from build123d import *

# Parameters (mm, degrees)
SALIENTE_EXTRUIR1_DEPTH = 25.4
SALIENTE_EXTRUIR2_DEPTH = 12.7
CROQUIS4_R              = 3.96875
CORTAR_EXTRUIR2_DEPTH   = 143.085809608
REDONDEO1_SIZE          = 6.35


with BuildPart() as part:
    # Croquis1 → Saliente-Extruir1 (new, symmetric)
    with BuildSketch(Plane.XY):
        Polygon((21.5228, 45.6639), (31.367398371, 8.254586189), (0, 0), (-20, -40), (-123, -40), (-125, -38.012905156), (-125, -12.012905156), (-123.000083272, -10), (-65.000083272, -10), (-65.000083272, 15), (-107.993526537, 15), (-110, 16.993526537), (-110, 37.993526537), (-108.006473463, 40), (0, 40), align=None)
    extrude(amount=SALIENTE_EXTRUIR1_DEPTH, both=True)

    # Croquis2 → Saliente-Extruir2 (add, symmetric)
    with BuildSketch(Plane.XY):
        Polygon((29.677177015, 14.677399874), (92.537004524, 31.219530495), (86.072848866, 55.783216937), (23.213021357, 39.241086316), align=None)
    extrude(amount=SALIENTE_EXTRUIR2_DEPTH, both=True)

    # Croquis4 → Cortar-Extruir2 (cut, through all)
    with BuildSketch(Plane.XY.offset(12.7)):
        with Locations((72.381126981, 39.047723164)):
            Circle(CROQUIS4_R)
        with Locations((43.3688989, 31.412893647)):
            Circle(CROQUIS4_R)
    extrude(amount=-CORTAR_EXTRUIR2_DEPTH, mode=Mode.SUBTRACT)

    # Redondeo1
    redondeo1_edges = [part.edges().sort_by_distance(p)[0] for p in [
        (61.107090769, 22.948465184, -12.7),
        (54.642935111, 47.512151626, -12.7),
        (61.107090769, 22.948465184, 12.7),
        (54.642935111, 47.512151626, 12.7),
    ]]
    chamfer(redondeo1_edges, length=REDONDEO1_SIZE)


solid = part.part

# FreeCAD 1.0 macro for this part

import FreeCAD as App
import Part
import Sketcher
Q = App.Units.Quantity


def edges_at(feature, points):
    """Names of the edges that pass closest to the given points."""
    edges = feature.Shape.Edges
    near = lambda p: min(range(len(edges)), key=lambda i: edges[i].distToShape(Part.Vertex(*p))[0])
    return sorted({f"Edge{near(p) + 1}" for p in points})

doc = App.newDocument("Part")
body = doc.addObject("PartDesign::Body", "Body")

sketch1 = body.newObject("Sketcher::SketchObject", "Sketch")
sketch1.AttachmentSupport = (doc.getObject("XY_Plane"), [""])
sketch1.MapMode = "FlatFace"
sketch1.addGeometry([
    Part.LineSegment(App.Vector(31.367398, 8.254586, 0), App.Vector(21.5228, 45.6639, 0)),
    Part.LineSegment(App.Vector(21.5228, 45.6639, 0), App.Vector(0, 40, 0)),
    Part.LineSegment(App.Vector(0, 40, 0), App.Vector(-108.006473, 40, 0)),
    Part.LineSegment(App.Vector(-108.006473, 40, 0), App.Vector(-110, 37.993527, 0)),
    Part.LineSegment(App.Vector(-110, 37.993527, 0), App.Vector(-110, 16.993527, 0)),
    Part.LineSegment(App.Vector(-110, 16.993527, 0), App.Vector(-107.993527, 15, 0)),
    Part.LineSegment(App.Vector(-107.993527, 15, 0), App.Vector(-65.000083, 15, 0)),
    Part.LineSegment(App.Vector(-65.000083, 15, 0), App.Vector(-65.000083, -10, 0)),
    Part.LineSegment(App.Vector(-65.000083, -10, 0), App.Vector(-123.000083, -10, 0)),
    Part.LineSegment(App.Vector(-123.000083, -10, 0), App.Vector(-125, -12.012905, 0)),
    Part.LineSegment(App.Vector(-125, -12.012905, 0), App.Vector(-125, -38.012905, 0)),
    Part.LineSegment(App.Vector(-125, -38.012905, 0), App.Vector(-123, -40, 0)),
    Part.LineSegment(App.Vector(-123, -40, 0), App.Vector(-20, -40, 0)),
    Part.LineSegment(App.Vector(-20, -40, 0), App.Vector(0, 0, 0)),
    Part.LineSegment(App.Vector(0, 0, 0), App.Vector(31.367398, 8.254586, 0)),
], False)
sketch1.addConstraint([
    Sketcher.Constraint("Coincident", 0, 2, 1, 1),
    Sketcher.Constraint("Coincident", 1, 2, 2, 1),
    Sketcher.Constraint("Coincident", 2, 2, 3, 1),
    Sketcher.Constraint("Coincident", 3, 2, 4, 1),
    Sketcher.Constraint("Coincident", 4, 2, 5, 1),
    Sketcher.Constraint("Coincident", 5, 2, 6, 1),
    Sketcher.Constraint("Coincident", 6, 2, 7, 1),
    Sketcher.Constraint("Coincident", 7, 2, 8, 1),
    Sketcher.Constraint("Coincident", 8, 2, 9, 1),
    Sketcher.Constraint("Coincident", 9, 2, 10, 1),
    Sketcher.Constraint("Coincident", 10, 2, 11, 1),
    Sketcher.Constraint("Coincident", 11, 2, 12, 1),
    Sketcher.Constraint("Coincident", 12, 2, 13, 1),
    Sketcher.Constraint("Coincident", 13, 2, 14, 1),
    Sketcher.Constraint("Coincident", 14, 2, 0, 1),
    Sketcher.Constraint("Horizontal", 2),
    Sketcher.Constraint("Vertical", 4),
    Sketcher.Constraint("Horizontal", 6),
    Sketcher.Constraint("Vertical", 7),
    Sketcher.Constraint("Horizontal", 8),
    Sketcher.Constraint("Vertical", 10),
    Sketcher.Constraint("Horizontal", 12),
    Sketcher.Constraint("Coincident", 13, 2, -1, 1),
    Sketcher.Constraint("PointOnObject", 1, 2, -2),
    Sketcher.Constraint("DistanceX", 8, 2, 8, 1, Q("58 mm")),
    Sketcher.Constraint("DistanceX", 12, 1, 12, 2, Q("103 mm")),
    Sketcher.Constraint("DistanceY", 4, 2, 4, 1, Q("21 mm")),
    Sketcher.Constraint("DistanceY", 7, 2, 7, 1, Q("25 mm")),
    Sketcher.Constraint("DistanceY", 10, 2, 10, 1, Q("26 mm")),
    Sketcher.Constraint("DistanceY", -1, 1, 1, 2, Q("40 mm")),
    Sketcher.Constraint("DistanceX", 3, 2, -1, 1, Q("110 mm")),
    Sketcher.Constraint("DistanceY", -1, 1, 5, 2, Q("15 mm")),
    Sketcher.Constraint("DistanceX", 9, 2, -1, 1, Q("125 mm")),
    Sketcher.Constraint("DistanceX", 11, 2, -1, 1, Q("123 mm")),
    Sketcher.Constraint("DistanceY", 11, 2, -1, 1, Q("40 mm")),
    Sketcher.Constraint("DistanceX", -1, 1, 0, 2, Q("21.5228 mm")),
    Sketcher.Constraint("DistanceY", -1, 1, 0, 2, Q("45.6639 mm")),
    Sketcher.Constraint("DistanceX", -1, 1, 14, 2, Q("31.367398 mm")),
    Sketcher.Constraint("Distance", 0, Q("38.682979 mm")),
    Sketcher.Constraint("Distance", 3, Q("2.828442 mm")),
    Sketcher.Constraint("Distance", 5, Q("2.828442 mm")),
    Sketcher.Constraint("Distance", 9, Q("2.837508 mm")),
    Sketcher.Constraint("DistanceX", 2, 2, 2, 1, Q("108.006473 mm")),
    Sketcher.Constraint("DistanceX", 6, 1, 6, 2, Q("42.993443 mm")),
])
pad1 = body.newObject("PartDesign::Pad", "Pad")
pad1.Profile = sketch1
pad1.Length = 50.8
pad1.Midplane = True

sketch2 = body.newObject("Sketcher::SketchObject", "Sketch001")
sketch2.AttachmentSupport = (doc.getObject("XY_Plane"), [""])
sketch2.MapMode = "FlatFace"
sketch2.addGeometry([
    Part.LineSegment(App.Vector(30, 15, 0), App.Vector(93, 31, 0)),
    Part.LineSegment(App.Vector(93, 31, 0), App.Vector(86, 56, 0)),
    Part.LineSegment(App.Vector(86, 56, 0), App.Vector(23, 39, 0)),
    Part.LineSegment(App.Vector(23, 39, 0), App.Vector(30, 15, 0)),
], False)
sketch2.addConstraint([
    Sketcher.Constraint("Coincident", 0, 2, 1, 1),
    Sketcher.Constraint("Coincident", 1, 2, 2, 1),
    Sketcher.Constraint("Coincident", 2, 2, 3, 1),
    Sketcher.Constraint("Coincident", 3, 2, 0, 1),
    Sketcher.Constraint("Perpendicular", 0, 1),
    Sketcher.Constraint("Perpendicular", 1, 2),
    Sketcher.Constraint("Perpendicular", 2, 3),
    Sketcher.Constraint("Distance", 0, Q("65 mm")),
    Sketcher.Constraint("Distance", 1, Q("25.4 mm")),
    Sketcher.Constraint("DistanceY", -1, 1, 3, 2, Q("14.6774 mm")),
    Sketcher.Constraint("DistanceY", -1, 1, 0, 2, Q("31.21953 mm")),
    Sketcher.Constraint("DistanceX", -1, 1, 1, 2, Q("86.072849 mm")),
])
pad2 = body.newObject("PartDesign::Pad", "Pad001")
pad2.Profile = sketch2
pad2.Length = 25.4
pad2.Midplane = True

sketch3 = body.newObject("Sketcher::SketchObject", "Sketch002")
sketch3.AttachmentSupport = (doc.getObject("XY_Plane"), [""])
sketch3.MapMode = "FlatFace"
sketch3.AttachmentOffset = App.Placement(App.Vector(0, 0, 12.7), App.Rotation())
sketch3.addGeometry([
    Part.Circle(App.Vector(72.4, 39, 0), App.Vector(0, 0, 1), 4),
    Part.Circle(App.Vector(43.4, 31.4, 0), App.Vector(0, 0, 1), 4),
], False)
sketch3.addConstraint([
    Sketcher.Constraint("Equal", 0, 1),
    Sketcher.Constraint("Diameter", 0, Q("7.9375 mm")),
    Sketcher.Constraint("DistanceX", -1, 1, 1, 3, Q("43.368899 mm")),
    Sketcher.Constraint("DistanceX", 1, 3, 0, 3, Q("29.012228 mm")),
    Sketcher.Constraint("DistanceY", 1, 3, 0, 3, Q("7.63483 mm")),
    Sketcher.Constraint("DistanceY", -1, 1, 0, 3, Q("39.047723 mm")),
])
pocket1 = body.newObject("PartDesign::Pocket", "Pocket")
pocket1.Profile = sketch3
pocket1.Type = "ThroughAll"
doc.recompute()

chamfer = body.newObject("PartDesign::Chamfer", "Chamfer")
chamfer.Base = (pocket1, edges_at(pocket1, [
    (61.107, 22.948, -12.7),
    (54.643, 47.512, -12.7),
    (61.107, 22.948, 12.7),
    (54.643, 47.512, 12.7),
]))
chamfer.Size = 6.35

doc.recompute()
